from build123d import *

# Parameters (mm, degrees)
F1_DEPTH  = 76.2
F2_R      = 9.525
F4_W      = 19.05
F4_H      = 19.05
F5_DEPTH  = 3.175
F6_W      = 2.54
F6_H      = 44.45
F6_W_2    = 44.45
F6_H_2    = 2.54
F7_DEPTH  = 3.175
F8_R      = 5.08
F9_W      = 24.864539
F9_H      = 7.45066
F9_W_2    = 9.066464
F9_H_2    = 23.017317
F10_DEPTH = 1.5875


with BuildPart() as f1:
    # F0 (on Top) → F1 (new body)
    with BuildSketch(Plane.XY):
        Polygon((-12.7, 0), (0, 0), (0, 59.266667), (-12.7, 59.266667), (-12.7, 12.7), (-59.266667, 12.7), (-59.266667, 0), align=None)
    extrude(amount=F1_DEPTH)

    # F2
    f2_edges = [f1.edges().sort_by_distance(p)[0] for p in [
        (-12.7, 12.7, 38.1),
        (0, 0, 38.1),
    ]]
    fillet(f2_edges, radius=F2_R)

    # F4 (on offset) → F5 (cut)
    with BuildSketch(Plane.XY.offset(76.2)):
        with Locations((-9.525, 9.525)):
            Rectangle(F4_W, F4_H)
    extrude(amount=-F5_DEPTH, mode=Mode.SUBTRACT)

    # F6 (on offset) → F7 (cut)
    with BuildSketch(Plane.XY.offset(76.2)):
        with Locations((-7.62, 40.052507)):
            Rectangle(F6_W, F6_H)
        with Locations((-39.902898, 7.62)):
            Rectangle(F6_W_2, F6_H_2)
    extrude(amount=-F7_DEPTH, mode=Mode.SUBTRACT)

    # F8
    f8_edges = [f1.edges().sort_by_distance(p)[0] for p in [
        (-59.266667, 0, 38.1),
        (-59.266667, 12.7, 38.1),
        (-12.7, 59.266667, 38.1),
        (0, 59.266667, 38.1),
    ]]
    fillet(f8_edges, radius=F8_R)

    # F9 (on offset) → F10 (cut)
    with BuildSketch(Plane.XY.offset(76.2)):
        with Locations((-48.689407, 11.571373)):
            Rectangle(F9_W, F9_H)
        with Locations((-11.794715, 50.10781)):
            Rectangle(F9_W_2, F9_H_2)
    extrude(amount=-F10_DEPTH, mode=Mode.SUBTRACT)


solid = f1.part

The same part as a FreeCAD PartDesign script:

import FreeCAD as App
import Part
import Sketcher
from FreeCAD import Vector
Q = App.Units.Quantity


def edges_at(feature, points):
    """Names of the edges that pass closest to the given points."""
    edges = feature.Shape.Edges
    near = lambda p: min(range(len(edges)), key=lambda i: edges[i].distToShape(Part.Vertex(*p))[0])
    return sorted({f"Edge{near(p) + 1}" for p in points})

doc = App.newDocument("Part")
params = doc.addObject("Spreadsheet::Sheet", "Params")
for row, (alias, value) in enumerate([
    ("sketch1_width", "0.5 in"),
    ("pad1_length", "3 in"),
    ("fillet_radius", "0.375 in"),
    ("sketch2_width", "0.75 in"),
    ("pocket1_length", "0.125 in"),
    ("sketch3_width", "0.1 in"),
    ("sketch3_width2", "1.75 in"),
    ("pocket2_length", "0.125 in"),
    ("fillet2_radius", "0.2 in"),
    ("pocket3_length", "0.0625 in"),
], start=1):
    params.set(f"A{row}", alias)
    params.set(f"B{row}", "=" + value)
    params.setAlias(f"B{row}", alias)

body = doc.addObject("PartDesign::Body", "Body")

# Sketch on XY plane
sketch1 = body.newObject("Sketcher::SketchObject", "Sketch")
sketch1.AttachmentSupport = (doc.getObject("XY_Plane"), [""])
sketch1.MapMode = "FlatFace"
sketch1.addGeometry([
    Part.LineSegment(Vector(0, 0, 0), Vector(0, 59, 0)),  # 0
    Part.LineSegment(Vector(0, 59, 0), Vector(-13, 59, 0)),  # 1
    Part.LineSegment(Vector(-13, 59, 0), Vector(-13, 13, 0)),  # 2
    Part.LineSegment(Vector(-13, 13, 0), Vector(-59, 13, 0)),  # 3
    Part.LineSegment(Vector(-59, 13, 0), Vector(-59, 0, 0)),  # 4
    Part.LineSegment(Vector(-59, 0, 0), Vector(0, 0, 0)),  # 5
], False)
sketch1.addConstraint([
    Sketcher.Constraint("Coincident", 0, 2, 1, 1),
    Sketcher.Constraint("Coincident", 1, 2, 2, 1),
    Sketcher.Constraint("Coincident", 2, 2, 3, 1),
    Sketcher.Constraint("Coincident", 3, 2, 4, 1),
    Sketcher.Constraint("Coincident", 4, 2, 5, 1),
    Sketcher.Constraint("Coincident", 5, 2, 0, 1),
    Sketcher.Constraint("Vertical", 0),
    Sketcher.Constraint("Horizontal", 1),
    Sketcher.Constraint("Vertical", 2),
    Sketcher.Constraint("Horizontal", 3),
    Sketcher.Constraint("Vertical", 4),
    Sketcher.Constraint("Horizontal", 5),
    Sketcher.Constraint("Coincident", 5, 2, -1, 1),
    Sketcher.Constraint("Equal", 5, 0),
    Sketcher.Constraint("Equal", 3, 2),
    Sketcher.Constraint("DistanceX", 1, 2, 1, 1, Q("0.5 in")),
    Sketcher.Constraint("DistanceX", 3, 2, 3, 1, 46.566667),
])
sketch1.setExpression("Constraints[15]", "Params.sketch1_width")
pad1 = body.newObject("PartDesign::Pad", "Pad")
pad1.Profile = sketch1
pad1.setExpression("Length", "Params.pad1_length")
doc.recompute()

fillet = body.newObject("PartDesign::Fillet", "Fillet")
fillet.Base = (pad1, edges_at(pad1, [(-12.7, 12.7, 38.1), (0, 0, 38.1)]))
fillet.setExpression("Radius", "Params.fillet_radius")

# Sketch on XY plane
sketch2 = body.newObject("Sketcher::SketchObject", "Sketch001")
sketch2.AttachmentSupport = (doc.getObject("XY_Plane"), [""])
sketch2.MapMode = "FlatFace"
sketch2.AttachmentOffset = App.Placement(Vector(0, 0, 3 * 25.4), App.Rotation())
sketch2.addGeometry([
    Part.LineSegment(Vector(-19, 19, 0), Vector(-19, 0, 0)),
    Part.LineSegment(Vector(-19, 0, 0), Vector(0, 0, 0)),
    Part.LineSegment(Vector(0, 0, 0), Vector(0, 19, 0)),
    Part.LineSegment(Vector(0, 19, 0), Vector(-19, 19, 0)),
], False)
sketch2.addConstraint([
    Sketcher.Constraint("Coincident", 0, 2, 1, 1),
    Sketcher.Constraint("Coincident", 1, 2, 2, 1),
    Sketcher.Constraint("Coincident", 2, 2, 3, 1),
    Sketcher.Constraint("Coincident", 3, 2, 0, 1),
    Sketcher.Constraint("Vertical", 0),
    Sketcher.Constraint("Horizontal", 1),
    Sketcher.Constraint("Vertical", 2),
    Sketcher.Constraint("Horizontal", 3),
    Sketcher.Constraint("Coincident", 1, 2, -1, 1),
    Sketcher.Constraint("Equal", 3, 0),
    Sketcher.Constraint("DistanceX", 1, 1, 1, 2, Q("0.75 in")),
])
sketch2.setExpression("Constraints[10]", "Params.sketch2_width")
pocket1 = body.newObject("PartDesign::Pocket", "Pocket")
pocket1.Profile = sketch2
pocket1.setExpression("Length", "Params.pocket1_length")

# Sketch on XY plane
sketch3 = body.newObject("Sketcher::SketchObject", "Sketch002")
sketch3.AttachmentSupport = (doc.getObject("XY_Plane"), [""])
sketch3.MapMode = "FlatFace"
sketch3.AttachmentOffset = App.Placement(Vector(0, 0, 3 * 25.4), App.Rotation())
sketch3.addGeometry([
    Part.LineSegment(Vector(-8.9, 62.3, 0), Vector(-8.9, 17.8, 0)),  # 0
    Part.LineSegment(Vector(-8.9, 17.8, 0), Vector(-6.3, 17.8, 0)),  # 1
    Part.LineSegment(Vector(-6.3, 17.8, 0), Vector(-6.3, 62.3, 0)),  # 2
    Part.LineSegment(Vector(-6.3, 62.3, 0), Vector(-8.9, 62.3, 0)),  # 3
    Part.LineSegment(Vector(-62.1, 8.9, 0), Vector(-62.1, 6.3, 0)),  # 4
    Part.LineSegment(Vector(-62.1, 6.3, 0), Vector(-17.7, 6.3, 0)),  # 5
    Part.LineSegment(Vector(-17.7, 6.3, 0), Vector(-17.7, 8.9, 0)),  # 6
    Part.LineSegment(Vector(-17.7, 8.9, 0), Vector(-62.1, 8.9, 0)),  # 7
], False)
sketch3.addConstraint([
    Sketcher.Constraint("Coincident", 0, 2, 1, 1),
    Sketcher.Constraint("Coincident", 1, 2, 2, 1),
    Sketcher.Constraint("Coincident", 2, 2, 3, 1),
    Sketcher.Constraint("Coincident", 3, 2, 0, 1),
    Sketcher.Constraint("Coincident", 4, 2, 5, 1),
    Sketcher.Constraint("Coincident", 5, 2, 6, 1),
    Sketcher.Constraint("Coincident", 6, 2, 7, 1),
    Sketcher.Constraint("Coincident", 7, 2, 4, 1),
    Sketcher.Constraint("Vertical", 0),
    Sketcher.Constraint("Horizontal", 1),
    Sketcher.Constraint("Vertical", 2),
    Sketcher.Constraint("Horizontal", 3),
    Sketcher.Constraint("Vertical", 4),
    Sketcher.Constraint("Horizontal", 5),
    Sketcher.Constraint("Vertical", 6),
    Sketcher.Constraint("Horizontal", 7),
    Sketcher.Constraint("Equal", 7, 0),
    Sketcher.Constraint("Equal", 3, 4),
    Sketcher.Constraint("DistanceX", 1, 1, 1, 2, Q("0.1 in")),
    Sketcher.Constraint("DistanceX", 5, 1, 5, 2, Q("1.75 in")),
    Sketcher.Constraint("DistanceX", 0, 2, -1, 1, Q("0.35 in")),
    Sketcher.Constraint("DistanceY", -1, 1, 4, 2, Q("0.25 in")),
    Sketcher.Constraint("DistanceX", 4, 2, -1, 1, 62.127898),
    Sketcher.Constraint("DistanceY", -1, 1, 0, 2, 17.827507),
])
sketch3.setExpression("Constraints[18]", "Params.sketch3_width")
sketch3.setExpression("Constraints[19]", "Params.sketch3_width2")
pocket2 = body.newObject("PartDesign::Pocket", "Pocket001")
pocket2.Profile = sketch3
pocket2.setExpression("Length", "Params.pocket2_length")
doc.recompute()

fillet2 = body.newObject("PartDesign::Fillet", "Fillet001")
fillet2.Base = (pocket2, edges_at(pocket2, [
    (-59.267, 0, 38.1),
    (-59.267, 12.7, 38.1),
    (-12.7, 59.267, 38.1),
    (0, 59.267, 38.1),
]))
fillet2.setExpression("Radius", "Params.fillet2_radius")

# Sketch on XY plane
sketch4 = body.newObject("Sketcher::SketchObject", "Sketch003")
sketch4.AttachmentSupport = (doc.getObject("XY_Plane"), [""])
sketch4.MapMode = "FlatFace"
sketch4.AttachmentOffset = App.Placement(Vector(0, 0, 3 * 25.4), App.Rotation())
sketch4.addGeometry([
    Part.LineSegment(Vector(-61, 15, 0), Vector(-61, 8, 0)),  # 0
    Part.LineSegment(Vector(-61, 8, 0), Vector(-36, 8, 0)),  # 1
    Part.LineSegment(Vector(-36, 8, 0), Vector(-36, 15, 0)),  # 2
    Part.LineSegment(Vector(-36, 15, 0), Vector(-61, 15, 0)),  # 3
    Part.LineSegment(Vector(-16, 62, 0), Vector(-16, 39, 0)),  # 4
    Part.LineSegment(Vector(-16, 39, 0), Vector(-7, 39, 0)),  # 5
    Part.LineSegment(Vector(-7, 39, 0), Vector(-7, 62, 0)),  # 6
    Part.LineSegment(Vector(-7, 62, 0), Vector(-16, 62, 0)),  # 7
], False)
sketch4.addConstraint([
    Sketcher.Constraint("Coincident", 0, 2, 1, 1),
    Sketcher.Constraint("Coincident", 1, 2, 2, 1),
    Sketcher.Constraint("Coincident", 2, 2, 3, 1),
    Sketcher.Constraint("Coincident", 3, 2, 0, 1),
    Sketcher.Constraint("Coincident", 4, 2, 5, 1),
    Sketcher.Constraint("Coincident", 5, 2, 6, 1),
    Sketcher.Constraint("Coincident", 6, 2, 7, 1),
    Sketcher.Constraint("Coincident", 7, 2, 4, 1),
    Sketcher.Constraint("Vertical", 0),
    Sketcher.Constraint("Horizontal", 1),
    Sketcher.Constraint("Vertical", 2),
    Sketcher.Constraint("Horizontal", 3),
    Sketcher.Constraint("Vertical", 4),
    Sketcher.Constraint("Horizontal", 5),
    Sketcher.Constraint("Vertical", 6),
    Sketcher.Constraint("Horizontal", 7),
    Sketcher.Constraint("DistanceX", 1, 1, 1, 2, 24.864539),
    Sketcher.Constraint("DistanceY", 0, 2, 0, 1, 7.45066),
    Sketcher.Constraint("DistanceX", 5, 1, 5, 2, 9.066464),
    Sketcher.Constraint("DistanceY", 4, 2, 4, 1, 23.017317),
    Sketcher.Constraint("DistanceY", -1, 1, 4, 2, 38.599151),
    Sketcher.Constraint("DistanceX", 2, 2, 4, 2, 19.92919),
    Sketcher.Constraint("DistanceY", 2, 2, 4, 2, 23.302448),
    Sketcher.Constraint("DistanceX", 0, 2, -1, 1, 61.121676),
])
pocket3 = body.newObject("PartDesign::Pocket", "Pocket002")
pocket3.Profile = sketch4
pocket3.setExpression("Length", "Params.pocket3_length")

doc.recompute()
